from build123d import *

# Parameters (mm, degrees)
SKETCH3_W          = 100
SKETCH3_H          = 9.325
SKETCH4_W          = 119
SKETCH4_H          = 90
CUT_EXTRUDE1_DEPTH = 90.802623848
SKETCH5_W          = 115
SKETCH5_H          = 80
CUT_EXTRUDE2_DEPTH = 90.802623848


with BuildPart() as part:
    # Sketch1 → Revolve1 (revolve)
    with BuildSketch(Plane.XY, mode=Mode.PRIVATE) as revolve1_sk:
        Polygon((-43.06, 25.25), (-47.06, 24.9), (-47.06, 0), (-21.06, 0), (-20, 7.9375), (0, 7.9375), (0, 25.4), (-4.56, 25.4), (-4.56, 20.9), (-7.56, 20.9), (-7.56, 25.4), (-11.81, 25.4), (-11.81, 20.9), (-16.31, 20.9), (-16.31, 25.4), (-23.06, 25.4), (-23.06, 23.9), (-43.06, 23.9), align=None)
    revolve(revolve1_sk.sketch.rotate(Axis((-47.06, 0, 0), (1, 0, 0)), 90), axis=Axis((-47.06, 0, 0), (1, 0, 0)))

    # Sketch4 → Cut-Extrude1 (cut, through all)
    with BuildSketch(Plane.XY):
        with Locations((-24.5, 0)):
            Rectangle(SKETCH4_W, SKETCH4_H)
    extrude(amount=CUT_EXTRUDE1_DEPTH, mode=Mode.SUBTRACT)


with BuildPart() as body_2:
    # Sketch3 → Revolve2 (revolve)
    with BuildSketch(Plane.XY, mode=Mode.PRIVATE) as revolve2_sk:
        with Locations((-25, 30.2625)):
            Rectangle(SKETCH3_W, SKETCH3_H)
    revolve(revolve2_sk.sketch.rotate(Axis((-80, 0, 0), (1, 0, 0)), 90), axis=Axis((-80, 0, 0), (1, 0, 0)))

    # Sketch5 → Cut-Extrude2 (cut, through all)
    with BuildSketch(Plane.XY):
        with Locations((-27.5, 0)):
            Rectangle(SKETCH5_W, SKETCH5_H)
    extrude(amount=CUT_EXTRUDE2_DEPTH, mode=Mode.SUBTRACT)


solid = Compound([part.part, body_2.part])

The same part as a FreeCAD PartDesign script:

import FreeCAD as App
import Part
import Sketcher

V = App.Vector


def add_polygon(sketch, points):
    """Adds a closed chain of lines whose ends are joined by coincident constraints."""
    first, n = sketch.GeometryCount, len(points)
    for a, b in zip(points, points[1:] + points[:1]):
        sketch.addGeometry(Part.LineSegment(App.Vector(*a, 0), App.Vector(*b, 0)), False)
    for i in range(n):
        sketch.addConstraint(Sketcher.Constraint("Coincident", first + i, 2, first + (i + 1) % n, 1))

doc = App.newDocument("Part")
body = doc.addObject("PartDesign::Body", "Body")

sketch1 = body.newObject("Sketcher::SketchObject", "Sketch")
sketch1.AttachmentSupport = (doc.getObject("XY_Plane"), [""])
sketch1.MapMode = "FlatFace"
add_polygon(sketch1, [(-43.06, 25.25), (-47.06, 24.9), (-47.06, 0), (-21.06, 0), (-20, 7.9375), (0, 7.9375), (0, 25.4), (-4.56, 25.4), (-4.56, 20.9), (-7.56, 20.9), (-7.56, 25.4), (-11.81, 25.4), (-11.81, 20.9), (-16.31, 20.9), (-16.31, 25.4), (-23.06, 25.4), (-23.06, 23.9), (-43.06, 23.9)])
sketch1.addConstraint(Sketcher.Constraint("Vertical", 1))
sketch1.addConstraint(Sketcher.Constraint("Horizontal", 2))
sketch1.addConstraint(Sketcher.Constraint("Horizontal", 4))
sketch1.addConstraint(Sketcher.Constraint("Vertical", 5))
sketch1.addConstraint(Sketcher.Constraint("Horizontal", 6))
sketch1.addConstraint(Sketcher.Constraint("Vertical", 7))
sketch1.addConstraint(Sketcher.Constraint("Horizontal", 8))
sketch1.addConstraint(Sketcher.Constraint("Vertical", 9))
sketch1.addConstraint(Sketcher.Constraint("Horizontal", 10))
sketch1.addConstraint(Sketcher.Constraint("Vertical", 11))
sketch1.addConstraint(Sketcher.Constraint("Horizontal", 12))
sketch1.addConstraint(Sketcher.Constraint("Vertical", 13))
sketch1.addConstraint(Sketcher.Constraint("Horizontal", 14))
sketch1.addConstraint(Sketcher.Constraint("Vertical", 15))
sketch1.addConstraint(Sketcher.Constraint("Horizontal", 16))
sketch1.addConstraint(Sketcher.Constraint("Vertical", 17))
sketch1.addConstraint(Sketcher.Constraint("PointOnObject", 1, 2, -1))
sketch1.addConstraint(Sketcher.Constraint("PointOnObject", 4, 2, -2))
sketch1.addConstraint(Sketcher.Constraint("Horizontal", 6, 2, 9, 2))
sketch1.addConstraint(Sketcher.Constraint("Horizontal", 8, 2, 11, 2))
sketch1.addConstraint(Sketcher.Constraint("Horizontal", 10, 2, 13, 2))
sketch1.addConstraint(Sketcher.Constraint("Equal", 4, 16))
sketch1.addConstraint(Sketcher.Constraint("Equal", 12, 7))
sketch1.addConstraint(Sketcher.Constraint("DistanceX", 2, 1, 2, 2, 26.0))
sketch1.addConstraint(Sketcher.Constraint("DistanceX", 4, 1, 4, 2, 20.0))
sketch1.addConstraint(Sketcher.Constraint("DistanceX", 8, 2, 8, 1, 3.0))
sketch1.addConstraint(Sketcher.Constraint("DistanceX", 12, 2, 12, 1, 4.5))
sketch1.addConstraint(Sketcher.Constraint("DistanceY", 1, 2, 1, 1, 24.9))
sketch1.addConstraint(Sketcher.Constraint("DistanceY", 15, 2, 15, 1, 1.5))
sketch1.addConstraint(Sketcher.Constraint("DistanceX", 0, 2, 16, 2, 4.0))
sketch1.addConstraint(Sketcher.Constraint("DistanceY", 16, 2, 0, 2, 1.0))
sketch1.addConstraint(Sketcher.Constraint("DistanceX", 6, 2, 6, 1, 4.56))
sketch1.addConstraint(Sketcher.Constraint("DistanceX", 10, 2, 10, 1, 4.25))
sketch1.addConstraint(Sketcher.Constraint("DistanceX", 14, 2, 14, 1, 6.75))
sketch1.addConstraint(Sketcher.Constraint("DistanceY", 17, 1, 17, 2, 1.35))
sketch1.addConstraint(Sketcher.Constraint("DistanceY", 5, 1, 5, 2, 17.4625))
revolution = body.newObject("PartDesign::Revolution", "Revolution")
revolution.Profile = sketch1
revolution.ReferenceAxis = (sketch1, ["H_Axis"])
revolution.Angle = 360

sketch2 = body.newObject("Sketcher::SketchObject", "Sketch001")
sketch2.AttachmentSupport = (doc.getObject("XY_Plane"), [""])
sketch2.MapMode = "FlatFace"
add_polygon(sketch2, [(-84, 45), (-84, -45), (35, -45), (35, 45)])
sketch2.addConstraint(Sketcher.Constraint("Vertical", 0))
sketch2.addConstraint(Sketcher.Constraint("Horizontal", 1))
sketch2.addConstraint(Sketcher.Constraint("Vertical", 2))
sketch2.addConstraint(Sketcher.Constraint("Horizontal", 3))
sketch2.addConstraint(Sketcher.Constraint("DistanceX", 1, 1, 1, 2, 119.0))
sketch2.addConstraint(Sketcher.Constraint("DistanceY", 0, 2, 0, 1, 90.0))
sketch2.addConstraint(Sketcher.Constraint("DistanceX", 0, 2, -1, 1, 84.0))
sketch2.addConstraint(Sketcher.Constraint("DistanceY", 0, 2, -1, 1, 45.0))
pocket1 = body.newObject("PartDesign::Pocket", "Pocket")
pocket1.Profile = sketch2
pocket1.Type = "ThroughAll"
pocket1.Reversed = True
body2 = doc.addObject("PartDesign::Body", "Body001")

sketch3 = body2.newObject("Sketcher::SketchObject", "Sketch002")
sketch3.AttachmentSupport = (doc.getObject("XY_Plane001"), [""])
sketch3.MapMode = "FlatFace"
add_polygon(sketch3, [(-75, 34.925), (-75, 25.6), (25, 25.6), (25, 34.925)])
sketch3.addConstraint(Sketcher.Constraint("Vertical", 0))
sketch3.addConstraint(Sketcher.Constraint("Horizontal", 1))
sketch3.addConstraint(Sketcher.Constraint("Vertical", 2))
sketch3.addConstraint(Sketcher.Constraint("Horizontal", 3))
sketch3.addConstraint(Sketcher.Constraint("DistanceX", 1, 1, 1, 2, 100.0))
sketch3.addConstraint(Sketcher.Constraint("DistanceX", 0, 2, -1, 1, 75.0))
sketch3.addConstraint(Sketcher.Constraint("DistanceY", -1, 1, 0, 2, 25.6))
sketch3.addConstraint(Sketcher.Constraint("DistanceY", 0, 2, 0, 1, 9.325))
revolution2 = body2.newObject("PartDesign::Revolution", "Revolution001")
revolution2.Profile = sketch3
revolution2.ReferenceAxis = (sketch3, ["H_Axis"])
revolution2.Angle = 360

sketch4 = body2.newObject("Sketcher::SketchObject", "Sketch003")
sketch4.AttachmentSupport = (doc.getObject("XY_Plane001"), [""])
sketch4.MapMode = "FlatFace"
add_polygon(sketch4, [(-85, 40), (-85, -40), (30, -40), (30, 40)])
sketch4.addConstraint(Sketcher.Constraint("Vertical", 0))
sketch4.addConstraint(Sketcher.Constraint("Horizontal", 1))
sketch4.addConstraint(Sketcher.Constraint("Vertical", 2))
sketch4.addConstraint(Sketcher.Constraint("Horizontal", 3))
sketch4.addConstraint(Sketcher.Constraint("DistanceX", 1, 1, 1, 2, 115.0))
sketch4.addConstraint(Sketcher.Constraint("DistanceY", 0, 2, 0, 1, 80.0))
sketch4.addConstraint(Sketcher.Constraint("DistanceX", 0, 2, -1, 1, 85.0))
sketch4.addConstraint(Sketcher.Constraint("DistanceY", 0, 2, -1, 1, 40.0))
pocket2 = body2.newObject("PartDesign::Pocket", "Pocket001")
pocket2.Profile = sketch4
pocket2.Type = "ThroughAll"
pocket2.Reversed = True

doc.recompute()
